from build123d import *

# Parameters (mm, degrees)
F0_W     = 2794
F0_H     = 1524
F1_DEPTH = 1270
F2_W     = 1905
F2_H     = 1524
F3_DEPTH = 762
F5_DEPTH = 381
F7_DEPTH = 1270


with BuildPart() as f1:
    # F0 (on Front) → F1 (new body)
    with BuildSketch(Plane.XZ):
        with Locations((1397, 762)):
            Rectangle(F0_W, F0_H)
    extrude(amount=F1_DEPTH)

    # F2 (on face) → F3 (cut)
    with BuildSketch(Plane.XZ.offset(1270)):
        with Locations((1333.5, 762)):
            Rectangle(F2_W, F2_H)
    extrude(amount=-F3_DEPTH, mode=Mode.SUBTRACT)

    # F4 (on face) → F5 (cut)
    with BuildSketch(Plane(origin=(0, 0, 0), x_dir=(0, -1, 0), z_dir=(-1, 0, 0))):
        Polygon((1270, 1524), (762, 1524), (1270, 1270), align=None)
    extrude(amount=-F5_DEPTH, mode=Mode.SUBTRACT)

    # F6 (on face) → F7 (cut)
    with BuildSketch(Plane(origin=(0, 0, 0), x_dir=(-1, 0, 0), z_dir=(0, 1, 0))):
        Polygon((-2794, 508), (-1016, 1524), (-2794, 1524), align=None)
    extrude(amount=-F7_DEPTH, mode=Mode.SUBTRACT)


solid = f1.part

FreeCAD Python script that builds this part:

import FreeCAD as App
import Part
import Sketcher
from FreeCAD import Vector
Q = App.Units.Quantity


def add_polygon(sketch, points):
    """Adds a closed chain of lines whose ends are joined by coincident constraints."""
    first, n = sketch.GeometryCount, len(points)
    for a, b in zip(points, points[1:] + points[:1]):
        sketch.addGeometry(Part.LineSegment(App.Vector(*a, 0), App.Vector(*b, 0)), False)
    for i in range(n):
        sketch.addConstraint(Sketcher.Constraint("Coincident", first + i, 2, first + (i + 1) % n, 1))

doc = App.newDocument("Part")
params = doc.addObject("Spreadsheet::Sheet", "Params")
for row, (alias, value) in enumerate([
    ("sketch1_width", "110 in"),
    ("sketch1_height", "60 in"),
    ("pad1_length", "50 in"),
    ("sketch2_width", "75 in"),
    ("sketch2_height", "60 in"),
    ("pocket1_length", "30 in"),
    ("sketch3_width", "20 in"),
    ("sketch3_height", "10 in"),
    ("pocket2_length", "15 in"),
    ("sketch4_width", "70 in"),
    ("sketch4_height", "40 in"),
    ("pocket3_length", "50 in"),
], start=1):
    params.set(f"A{row}", alias)
    params.set(f"B{row}", "=" + value)
    params.setAlias(f"B{row}", alias)

body = doc.addObject("PartDesign::Body", "Body")

# Sketch on XZ plane
sketch1 = doc.addObject("Sketcher::SketchObject", "Sketch")
body.addObject(sketch1)
sketch1.AttachmentSupport = (doc.XZ_Plane, [""])
sketch1.MapMode = "FlatFace"
add_polygon(sketch1, [(0, 1524), (0, 0), (2794, 0), (2794, 1524)])  # lines 0-3
sketch1.addConstraint([
    Sketcher.Constraint("Vertical", 0),
    Sketcher.Constraint("Horizontal", 1),
    Sketcher.Constraint("Vertical", 2),
    Sketcher.Constraint("Horizontal", 3),
    Sketcher.Constraint("Coincident", 0, 2, -1, 1),
    Sketcher.Constraint("DistanceX", 1, 1, 1, 2, Q("110 in")),
    Sketcher.Constraint("DistanceY", 0, 2, 0, 1, Q("60 in")),
])
sketch1.setExpression("Constraints[9]", "Params.sketch1_width")
sketch1.setExpression("Constraints[10]", "Params.sketch1_height")
pad1 = doc.addObject("PartDesign::Pad", "Pad")
body.addObject(pad1)
pad1.Profile = sketch1
pad1.setExpression("Length", "Params.pad1_length")

# Sketch on XZ plane
sketch2 = doc.addObject("Sketcher::SketchObject", "Sketch001")
body.addObject(sketch2)
sketch2.AttachmentSupport = (doc.XZ_Plane, [""])
sketch2.MapMode = "FlatFace"
sketch2.AttachmentOffset = App.Placement(Vector(0, 0, 50 * 25.4), App.Rotation())
add_polygon(sketch2, [(381, 1524), (381, 0), (2286, 0), (2286, 1524)])  # lines 0-3
sketch2.addConstraint([
    Sketcher.Constraint("Vertical", 0),
    Sketcher.Constraint("Horizontal", 1),
    Sketcher.Constraint("Vertical", 2),
    Sketcher.Constraint("Horizontal", 3),
    Sketcher.Constraint("PointOnObject", 0, 2, -1),
    Sketcher.Constraint("DistanceX", 1, 1, 1, 2, Q("75 in")),
    Sketcher.Constraint("DistanceY", 0, 2, 0, 1, Q("60 in")),
    Sketcher.Constraint("DistanceX", -1, 1, 0, 2, Q("15 in")),
])
sketch2.setExpression("Constraints[9]", "Params.sketch2_width")
sketch2.setExpression("Constraints[10]", "Params.sketch2_height")
pocket1 = doc.addObject("PartDesign::Pocket", "Pocket")
body.addObject(pocket1)
pocket1.Profile = sketch2
pocket1.setExpression("Length", "Params.pocket1_length")

# Sketch on YZ plane
sketch3 = doc.addObject("Sketcher::SketchObject", "Sketch002")
body.addObject(sketch3)
sketch3.AttachmentSupport = (doc.YZ_Plane, [""])
sketch3.MapMode = "FlatFace"
add_polygon(sketch3, [(-1270, 1524), (-762, 1524), (-1270, 1270)])  # lines 0-2
sketch3.addConstraint([
    Sketcher.Constraint("Horizontal", 0),
    Sketcher.Constraint("Vertical", 2),
    Sketcher.Constraint("DistanceX", 0, 1, 0, 2, Q("20 in")),
    Sketcher.Constraint("DistanceY", 2, 1, 2, 2, Q("10 in")),
    Sketcher.Constraint("DistanceX", 0, 2, -1, 1, Q("30 in")),
    Sketcher.Constraint("DistanceY", -1, 1, 0, 2, Q("60 in")),
])
sketch3.setExpression("Constraints[5]", "Params.sketch3_width")
sketch3.setExpression("Constraints[6]", "Params.sketch3_height")
pocket2 = doc.addObject("PartDesign::Pocket", "Pocket001")
body.addObject(pocket2)
pocket2.Profile = sketch3
pocket2.setExpression("Length", "Params.pocket2_length")
pocket2.Reversed = True

# Sketch on XZ plane
sketch4 = doc.addObject("Sketcher::SketchObject", "Sketch003")
body.addObject(sketch4)
sketch4.AttachmentSupport = (doc.XZ_Plane, [""])
sketch4.MapMode = "FlatFace"
add_polygon(sketch4, [(2794, 508), (1016, 1524), (2794, 1524)])  # lines 0-2
sketch4.addConstraint([
    Sketcher.Constraint("Horizontal", 1),
    Sketcher.Constraint("Vertical", 2),
    Sketcher.Constraint("DistanceX", 1, 1, 1, 2, Q("70 in")),
    Sketcher.Constraint("DistanceY", 2, 2, 2, 1, Q("40 in")),
    Sketcher.Constraint("DistanceX", -1, 1, 0, 2, Q("40 in")),
    Sketcher.Constraint("DistanceY", -1, 1, 0, 2, Q("60 in")),
])
sketch4.setExpression("Constraints[5]", "Params.sketch4_width")
sketch4.setExpression("Constraints[6]", "Params.sketch4_height")
pocket3 = doc.addObject("PartDesign::Pocket", "Pocket002")
body.addObject(pocket3)
pocket3.Profile = sketch4
pocket3.setExpression("Length", "Params.pocket3_length")
pocket3.Reversed = True

doc.recompute()
